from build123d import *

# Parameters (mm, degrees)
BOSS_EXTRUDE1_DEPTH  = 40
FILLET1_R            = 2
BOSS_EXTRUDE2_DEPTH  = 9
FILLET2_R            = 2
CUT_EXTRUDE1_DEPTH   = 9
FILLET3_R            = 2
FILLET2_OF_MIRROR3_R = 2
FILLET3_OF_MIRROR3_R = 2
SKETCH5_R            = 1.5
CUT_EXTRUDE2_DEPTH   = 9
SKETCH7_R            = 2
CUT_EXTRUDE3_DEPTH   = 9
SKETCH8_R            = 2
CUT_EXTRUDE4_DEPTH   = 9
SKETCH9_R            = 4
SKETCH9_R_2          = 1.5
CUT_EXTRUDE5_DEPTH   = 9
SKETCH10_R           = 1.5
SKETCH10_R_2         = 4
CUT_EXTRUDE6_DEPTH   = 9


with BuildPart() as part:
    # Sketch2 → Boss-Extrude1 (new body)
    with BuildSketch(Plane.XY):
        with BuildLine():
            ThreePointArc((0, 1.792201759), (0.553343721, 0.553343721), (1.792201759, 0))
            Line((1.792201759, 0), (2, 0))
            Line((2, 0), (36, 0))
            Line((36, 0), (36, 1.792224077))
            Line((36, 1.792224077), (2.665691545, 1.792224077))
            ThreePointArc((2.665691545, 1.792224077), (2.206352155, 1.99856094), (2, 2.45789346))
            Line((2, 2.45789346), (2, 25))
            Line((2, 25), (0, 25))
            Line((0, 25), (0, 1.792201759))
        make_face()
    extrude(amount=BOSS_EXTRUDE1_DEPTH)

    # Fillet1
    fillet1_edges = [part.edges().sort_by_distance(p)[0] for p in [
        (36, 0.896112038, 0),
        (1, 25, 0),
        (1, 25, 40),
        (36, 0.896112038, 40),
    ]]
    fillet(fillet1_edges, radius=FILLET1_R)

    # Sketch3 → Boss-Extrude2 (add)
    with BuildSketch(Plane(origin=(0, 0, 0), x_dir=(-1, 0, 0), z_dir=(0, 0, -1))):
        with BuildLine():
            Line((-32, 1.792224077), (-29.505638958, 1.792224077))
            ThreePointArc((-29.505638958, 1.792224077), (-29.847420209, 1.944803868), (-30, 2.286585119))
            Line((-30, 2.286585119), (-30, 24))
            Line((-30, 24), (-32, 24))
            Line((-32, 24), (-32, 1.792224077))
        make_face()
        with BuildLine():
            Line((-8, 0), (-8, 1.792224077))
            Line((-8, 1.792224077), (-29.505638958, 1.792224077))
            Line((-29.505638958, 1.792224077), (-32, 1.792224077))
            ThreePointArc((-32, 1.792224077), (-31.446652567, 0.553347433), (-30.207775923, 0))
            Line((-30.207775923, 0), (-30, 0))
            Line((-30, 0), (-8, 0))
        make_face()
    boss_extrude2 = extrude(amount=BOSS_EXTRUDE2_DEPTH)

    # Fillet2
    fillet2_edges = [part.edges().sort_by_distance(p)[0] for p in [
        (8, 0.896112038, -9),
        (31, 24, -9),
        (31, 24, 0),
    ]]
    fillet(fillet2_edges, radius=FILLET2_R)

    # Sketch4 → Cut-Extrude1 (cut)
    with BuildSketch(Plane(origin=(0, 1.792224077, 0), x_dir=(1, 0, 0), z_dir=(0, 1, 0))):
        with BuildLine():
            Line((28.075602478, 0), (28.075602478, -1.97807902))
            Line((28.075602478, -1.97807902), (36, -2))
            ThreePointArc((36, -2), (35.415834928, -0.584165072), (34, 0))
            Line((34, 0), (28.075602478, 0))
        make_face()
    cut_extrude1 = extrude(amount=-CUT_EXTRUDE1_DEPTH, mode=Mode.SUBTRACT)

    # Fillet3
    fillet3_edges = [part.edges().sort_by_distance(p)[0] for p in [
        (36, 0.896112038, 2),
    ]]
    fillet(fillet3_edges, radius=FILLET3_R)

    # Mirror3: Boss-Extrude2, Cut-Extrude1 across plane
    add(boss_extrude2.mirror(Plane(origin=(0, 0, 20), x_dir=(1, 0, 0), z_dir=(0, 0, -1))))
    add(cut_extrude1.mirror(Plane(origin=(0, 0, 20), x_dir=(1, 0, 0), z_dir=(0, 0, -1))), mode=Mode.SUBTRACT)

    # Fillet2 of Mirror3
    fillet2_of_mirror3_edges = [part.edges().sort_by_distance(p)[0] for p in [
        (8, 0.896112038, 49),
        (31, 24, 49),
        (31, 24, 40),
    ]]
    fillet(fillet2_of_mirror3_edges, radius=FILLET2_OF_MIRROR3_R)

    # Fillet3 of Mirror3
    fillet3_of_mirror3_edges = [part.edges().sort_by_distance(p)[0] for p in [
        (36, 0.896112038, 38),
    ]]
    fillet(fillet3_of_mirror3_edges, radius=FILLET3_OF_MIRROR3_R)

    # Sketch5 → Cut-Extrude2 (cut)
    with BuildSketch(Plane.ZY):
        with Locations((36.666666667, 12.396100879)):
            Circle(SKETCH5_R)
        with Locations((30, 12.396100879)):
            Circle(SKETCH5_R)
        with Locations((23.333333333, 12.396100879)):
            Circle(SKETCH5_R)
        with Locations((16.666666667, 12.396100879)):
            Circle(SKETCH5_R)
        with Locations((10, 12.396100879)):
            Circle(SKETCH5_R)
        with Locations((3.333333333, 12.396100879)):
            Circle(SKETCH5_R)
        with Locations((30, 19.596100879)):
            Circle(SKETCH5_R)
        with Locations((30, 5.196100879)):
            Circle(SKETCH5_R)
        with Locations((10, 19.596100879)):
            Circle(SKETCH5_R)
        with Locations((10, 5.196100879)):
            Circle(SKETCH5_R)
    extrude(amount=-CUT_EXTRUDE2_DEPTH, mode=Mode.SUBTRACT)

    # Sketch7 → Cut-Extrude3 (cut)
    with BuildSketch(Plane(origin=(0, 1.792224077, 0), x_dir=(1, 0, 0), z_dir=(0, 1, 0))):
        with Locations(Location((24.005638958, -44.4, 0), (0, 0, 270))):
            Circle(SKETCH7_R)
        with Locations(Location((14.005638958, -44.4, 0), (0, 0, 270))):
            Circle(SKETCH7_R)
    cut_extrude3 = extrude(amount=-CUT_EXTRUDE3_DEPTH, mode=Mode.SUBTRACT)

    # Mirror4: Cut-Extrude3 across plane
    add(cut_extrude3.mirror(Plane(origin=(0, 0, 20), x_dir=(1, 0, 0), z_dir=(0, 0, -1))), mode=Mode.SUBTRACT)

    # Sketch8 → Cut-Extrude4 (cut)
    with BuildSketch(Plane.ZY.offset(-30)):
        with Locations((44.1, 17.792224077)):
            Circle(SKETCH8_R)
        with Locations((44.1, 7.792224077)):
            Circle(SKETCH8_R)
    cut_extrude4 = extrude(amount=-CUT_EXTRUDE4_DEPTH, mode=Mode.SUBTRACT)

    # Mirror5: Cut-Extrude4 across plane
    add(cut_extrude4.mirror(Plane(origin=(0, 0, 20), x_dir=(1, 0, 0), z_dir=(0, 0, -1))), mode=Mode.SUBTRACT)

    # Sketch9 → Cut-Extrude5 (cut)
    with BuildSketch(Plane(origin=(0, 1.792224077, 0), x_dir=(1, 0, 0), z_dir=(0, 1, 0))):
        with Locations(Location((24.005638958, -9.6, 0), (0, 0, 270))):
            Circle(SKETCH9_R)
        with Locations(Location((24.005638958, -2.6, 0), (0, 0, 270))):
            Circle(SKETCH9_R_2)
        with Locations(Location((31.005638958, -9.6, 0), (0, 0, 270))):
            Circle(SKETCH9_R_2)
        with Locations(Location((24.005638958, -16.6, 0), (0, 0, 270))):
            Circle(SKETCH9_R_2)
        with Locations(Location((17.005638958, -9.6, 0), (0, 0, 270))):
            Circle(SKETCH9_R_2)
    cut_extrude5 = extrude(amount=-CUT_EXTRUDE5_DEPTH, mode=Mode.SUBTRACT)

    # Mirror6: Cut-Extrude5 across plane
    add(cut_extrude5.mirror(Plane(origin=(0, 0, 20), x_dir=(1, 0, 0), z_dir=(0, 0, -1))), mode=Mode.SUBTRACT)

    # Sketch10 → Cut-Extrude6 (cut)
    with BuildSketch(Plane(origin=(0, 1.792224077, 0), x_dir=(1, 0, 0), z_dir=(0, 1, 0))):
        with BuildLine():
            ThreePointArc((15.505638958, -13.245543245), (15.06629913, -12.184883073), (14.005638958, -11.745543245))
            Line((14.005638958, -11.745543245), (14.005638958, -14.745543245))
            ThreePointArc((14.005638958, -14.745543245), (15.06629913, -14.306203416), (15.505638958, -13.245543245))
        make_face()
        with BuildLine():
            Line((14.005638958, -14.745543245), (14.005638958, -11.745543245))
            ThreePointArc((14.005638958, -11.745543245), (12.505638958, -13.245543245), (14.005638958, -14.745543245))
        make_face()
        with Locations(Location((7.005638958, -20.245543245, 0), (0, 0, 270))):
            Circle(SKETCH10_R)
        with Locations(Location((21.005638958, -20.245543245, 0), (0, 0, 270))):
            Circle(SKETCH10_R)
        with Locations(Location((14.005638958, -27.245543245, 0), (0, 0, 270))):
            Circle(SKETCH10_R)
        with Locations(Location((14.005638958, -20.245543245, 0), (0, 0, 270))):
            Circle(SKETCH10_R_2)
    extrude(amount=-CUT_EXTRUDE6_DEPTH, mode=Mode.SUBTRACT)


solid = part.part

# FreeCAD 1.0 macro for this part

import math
import FreeCAD as App
import Part
import Sketcher


def edges_at(feature, points):
    """Names of the edges that pass closest to the given points."""
    edges = feature.Shape.Edges
    near = lambda p: min(range(len(edges)), key=lambda i: edges[i].distToShape(Part.Vertex(*p))[0])
    return sorted({f"Edge{near(p) + 1}" for p in points})

doc = App.newDocument("Part")
body = doc.addObject("PartDesign::Body", "Body")

# Sketch on XY plane
sketch1 = body.newObject("Sketcher::SketchObject", "Sketch")
sketch1.AttachmentSupport = (doc.getObject("XY_Plane"), [""])
sketch1.MapMode = "FlatFace"
sketch1.addGeometry([
    Part.ArcOfCircle(Part.Circle(App.Vector(1.9, 1.9, 0), App.Vector(0, 0, 1), 1.9), math.radians(-177), math.radians(-93)),  # 0
    Part.LineSegment(App.Vector(1.8, 0, 0), App.Vector(36, 0, 0)),  # 1
    Part.LineSegment(App.Vector(36, 0, 0), App.Vector(36, 1.8, 0)),  # 2
    Part.LineSegment(App.Vector(36, 1.8, 0), App.Vector(2.7, 1.8, 0)),  # 3
    Part.ArcOfCircle(Part.Circle(App.Vector(2.7, 2.5, 0), App.Vector(0, 0, 1), 0.7), math.radians(-177), math.radians(-93)),  # 4
    Part.LineSegment(App.Vector(2, 2.5, 0), App.Vector(2, 25, 0)),  # 5
    Part.LineSegment(App.Vector(2, 25, 0), App.Vector(0, 25, 0)),  # 6
    Part.LineSegment(App.Vector(0, 25, 0), App.Vector(0, 1.8, 0)),  # 7
], False)
sketch1.addConstraint([
    Sketcher.Constraint("Coincident", 0, 2, 1, 1),
    Sketcher.Constraint("Coincident", 1, 2, 2, 1),
    Sketcher.Constraint("Coincident", 2, 2, 3, 1),
    Sketcher.Constraint("Coincident", 3, 2, 4, 2),
    Sketcher.Constraint("Coincident", 4, 1, 5, 1),
    Sketcher.Constraint("Coincident", 5, 2, 6, 1),
    Sketcher.Constraint("Coincident", 6, 2, 7, 1),
    Sketcher.Constraint("Coincident", 7, 2, 0, 1),
    Sketcher.Constraint("Horizontal", 1),
    Sketcher.Constraint("Vertical", 2),
    Sketcher.Constraint("Horizontal", 3),
    Sketcher.Constraint("Vertical", 5),
    Sketcher.Constraint("Horizontal", 6),
    Sketcher.Constraint("Vertical", 7),
    Sketcher.Constraint("PointOnObject", 0, 2, -1),
    Sketcher.Constraint("PointOnObject", 6, 2, -2),
    Sketcher.Constraint("DistanceX", 6, 2, 6, 1, 2.0),
    Sketcher.Constraint("DistanceX", -1, 1, 1, 2, 36.0),
    Sketcher.Constraint("DistanceY", -1, 1, 5, 2, 25.0),
    Sketcher.Constraint("DistanceX", 1, 1, 1, 2, 34.207798),
    Sketcher.Constraint("DistanceY", 7, 2, 7, 1, 23.207798),
    Sketcher.Constraint("Radius", 0, 1.898945),
    Sketcher.Constraint("Radius", 4, 0.708717),
    Sketcher.Constraint("DistanceX", 3, 2, 3, 1, 33.334308),
    Sketcher.Constraint("DistanceY", 2, 1, 2, 2, 1.792224),
    Sketcher.Constraint("DistanceY", 5, 1, 5, 2, 22.542107),
])
pad1 = body.newObject("PartDesign::Pad", "Pad")
pad1.Profile = sketch1
pad1.Length = 40
doc.recompute()

fillet = body.newObject("PartDesign::Fillet", "Fillet")
fillet.Base = (pad1, edges_at(pad1, [
    (36, 0.896, 0),
    (1, 25, 0),
    (1, 25, 40),
    (36, 0.896, 40),
]))
fillet.Radius = 2

# Sketch on XY plane
sketch2 = body.newObject("Sketcher::SketchObject", "Sketch001")
sketch2.AttachmentSupport = (doc.getObject("XY_Plane"), [""])
sketch2.MapMode = "FlatFace"
sketch2.addGeometry([
    Part.ArcOfCircle(Part.Circle(App.Vector(29.5, 2.3, 0), App.Vector(0, 0, 1), 0.5), math.radians(-87), math.radians(-3)),  # 0
    Part.LineSegment(App.Vector(30, 2.3, 0), App.Vector(30, 24, 0)),  # 1
    Part.LineSegment(App.Vector(30, 24, 0), App.Vector(32, 24, 0)),  # 2
    Part.LineSegment(App.Vector(32, 24, 0), App.Vector(32, 1.8, 0)),  # 3
    Part.ArcOfCircle(Part.Circle(App.Vector(30.1, 1.9, 0), App.Vector(0, 0, 1), 1.9), math.radians(-87), math.radians(-3)),  # 4
    Part.LineSegment(App.Vector(30.2, 0, 0), App.Vector(8, 0, 0)),  # 5
    Part.LineSegment(App.Vector(8, 0, 0), App.Vector(8, 1.8, 0)),  # 6
    Part.LineSegment(App.Vector(8, 1.8, 0), App.Vector(29.5, 1.8, 0)),  # 7
], False)
sketch2.addConstraint([
    Sketcher.Constraint("Coincident", 0, 2, 1, 1),
    Sketcher.Constraint("Coincident", 1, 2, 2, 1),
    Sketcher.Constraint("Coincident", 2, 2, 3, 1),
    Sketcher.Constraint("Coincident", 3, 2, 4, 2),
    Sketcher.Constraint("Coincident", 4, 1, 5, 1),
    Sketcher.Constraint("Coincident", 5, 2, 6, 1),
    Sketcher.Constraint("Coincident", 6, 2, 7, 1),
    Sketcher.Constraint("Coincident", 7, 2, 0, 1),
    Sketcher.Constraint("Vertical", 1),
    Sketcher.Constraint("Horizontal", 2),
    Sketcher.Constraint("Vertical", 3),
    Sketcher.Constraint("Horizontal", 5),
    Sketcher.Constraint("Vertical", 6),
    Sketcher.Constraint("Horizontal", 7),
    Sketcher.Constraint("PointOnObject", 4, 1, -1),
    Sketcher.Constraint("Horizontal", 3, 2, 6, 2),
    Sketcher.Constraint("Equal", 5, 3),
    Sketcher.Constraint("DistanceX", 2, 1, 2, 2, 2.0),
    Sketcher.Constraint("DistanceX", -1, 1, 0, 2, 30.0),
    Sketcher.Constraint("DistanceY", -1, 1, 1, 2, 24.0),
    Sketcher.Constraint("DistanceX", -1, 1, 5, 2, 8.0),
    Sketcher.Constraint("Radius", 0, 0.52358),
    Sketcher.Constraint("Radius", 4, 1.898956),
    Sketcher.Constraint("DistanceX", 7, 1, 7, 2, 21.505639),
    Sketcher.Constraint("DistanceX", 5, 2, 5, 1, 22.207776),
    Sketcher.Constraint("DistanceY", 1, 1, 1, 2, 21.713415),
])
pad2 = body.newObject("PartDesign::Pad", "Pad001")
pad2.Profile = sketch2
pad2.Length = 9
pad2.Reversed = True
doc.recompute()

fillet2 = body.newObject("PartDesign::Fillet", "Fillet001")
fillet2.Base = (pad2, edges_at(pad2, [(8, 0.896, -9), (31, 24, -9), (31, 24, 0)]))
fillet2.Radius = 2

# Sketch on XZ plane
sketch3 = body.newObject("Sketcher::SketchObject", "Sketch002")
sketch3.AttachmentSupport = (doc.getObject("XZ_Plane"), [""])
sketch3.MapMode = "FlatFace"
sketch3.AttachmentOffset = App.Placement(App.Vector(0, 0, -1.792224), App.Rotation())
sketch3.addGeometry([
    Part.LineSegment(App.Vector(28.1, 0, 0), App.Vector(28.1, 2, 0)),
    Part.LineSegment(App.Vector(28.1, 2, 0), App.Vector(36, 2, 0)),
    Part.ArcOfCircle(Part.Circle(App.Vector(34, 2, 0), App.Vector(0, 0, 1), 2), math.radians(-90), math.radians(0)),
    Part.LineSegment(App.Vector(34, 0, 0), App.Vector(28.1, 0, 0)),
], False)
sketch3.addConstraint([
    Sketcher.Constraint("Coincident", 0, 2, 1, 1),
    Sketcher.Constraint("Coincident", 1, 2, 2, 2),
    Sketcher.Constraint("Coincident", 2, 1, 3, 1),
    Sketcher.Constraint("Coincident", 3, 2, 0, 1),
    Sketcher.Constraint("Vertical", 0),
    Sketcher.Constraint("Horizontal", 3),
    Sketcher.Constraint("PointOnObject", 2, 1, -1),
    Sketcher.Constraint("DistanceX", -1, 1, 1, 2, 36.0),
    Sketcher.Constraint("DistanceY", -1, 1, 1, 2, 2.0),
    Sketcher.Constraint("DistanceX", -1, 1, 2, 1, 34.0),
    Sketcher.Constraint("Radius", 2, 1.99449),
    Sketcher.Constraint("DistanceY", 0, 1, 0, 2, 1.978079),
    Sketcher.Constraint("DistanceX", 3, 2, 3, 1, 5.924398),
])
pocket1 = body.newObject("PartDesign::Pocket", "Pocket")
pocket1.Profile = sketch3
pocket1.Length = 9
pocket1.Reversed = True
doc.recompute()

fillet3 = body.newObject("PartDesign::Fillet", "Fillet002")
fillet3.Base = (pocket1, edges_at(pocket1, [(36, 0.896, 2)]))
fillet3.Radius = 2
doc.recompute()

datumplane = body.newObject("PartDesign::Plane", "DatumPlane")
datumplane.AttachmentSupport = (doc.getObject("XY_Plane"), [""])
datumplane.MapMode = "FlatFace"
datumplane.AttachmentOffset = App.Placement(App.Vector(0, 0, 20), App.Rotation())
mirrored = body.newObject("PartDesign::Mirrored", "Mirrored")
mirrored.Originals = [pad2, pocket1]
mirrored.MirrorPlane = (datumplane, [""])
body.Tip = mirrored
doc.recompute()

fillet4 = body.newObject("PartDesign::Fillet", "Fillet003")
fillet4.Base = (mirrored, edges_at(mirrored, [(8, 0.896, 49), (31, 24, 49), (31, 24, 40)]))
fillet4.Radius = 2
doc.recompute()

fillet5 = body.newObject("PartDesign::Fillet", "Fillet004")
fillet5.Base = (fillet4, edges_at(fillet4, [(36, 0.896, 38)]))
fillet5.Radius = 2

# Sketch on YZ plane
sketch4 = body.newObject("Sketcher::SketchObject", "Sketch003")
sketch4.AttachmentSupport = (doc.getObject("YZ_Plane"), [""])
sketch4.MapMode = "FlatFace"
sketch4.addGeometry([
    Part.Circle(App.Vector(12.4, 36.7, 0), App.Vector(0, 0, 1), 1.5),  # 0
    Part.Circle(App.Vector(12.4, 30, 0), App.Vector(0, 0, 1), 1.5),  # 1
    Part.Circle(App.Vector(12.4, 23.3, 0), App.Vector(0, 0, 1), 1.5),  # 2
    Part.Circle(App.Vector(12.4, 16.7, 0), App.Vector(0, 0, 1), 1.5),  # 3
    Part.Circle(App.Vector(12.4, 10, 0), App.Vector(0, 0, 1), 1.5),  # 4
    Part.Circle(App.Vector(12.4, 3.3, 0), App.Vector(0, 0, 1), 1.5),  # 5
    Part.Circle(App.Vector(19.6, 30, 0), App.Vector(0, 0, 1), 1.5),  # 6
    Part.Circle(App.Vector(5.2, 30, 0), App.Vector(0, 0, 1), 1.5),  # 7
    Part.Circle(App.Vector(19.6, 10, 0), App.Vector(0, 0, 1), 1.5),  # 8
    Part.Circle(App.Vector(5.2, 10, 0), App.Vector(0, 0, 1), 1.5),  # 9
], False)
sketch4.addConstraint([
    Sketcher.Constraint("Equal", 0, 1),
    Sketcher.Constraint("Equal", 1, 2),
    Sketcher.Constraint("Equal", 2, 3),
    Sketcher.Constraint("Equal", 3, 4),
    Sketcher.Constraint("Equal", 4, 5),
    Sketcher.Constraint("Equal", 5, 6),
    Sketcher.Constraint("Equal", 6, 7),
    Sketcher.Constraint("Equal", 7, 8),
    Sketcher.Constraint("Equal", 8, 9),
    Sketcher.Constraint("Horizontal", 1, 3, 6, 3),
    Sketcher.Constraint("Horizontal", 6, 3, 7, 3),
    Sketcher.Constraint("Horizontal", 4, 3, 8, 3),
    Sketcher.Constraint("Horizontal", 8, 3, 9, 3),
    Sketcher.Constraint("Vertical", 0, 3, 1, 3),
    Sketcher.Constraint("Vertical", 1, 3, 2, 3),
    Sketcher.Constraint("Vertical", 2, 3, 3, 3),
    Sketcher.Constraint("Vertical", 3, 3, 4, 3),
    Sketcher.Constraint("Vertical", 4, 3, 5, 3),
    Sketcher.Constraint("Vertical", 6, 3, 8, 3),
    Sketcher.Constraint("Vertical", 7, 3, 9, 3),
    Sketcher.Constraint("Diameter", 0, 3.0),
    Sketcher.Constraint("DistanceY", -1, 1, 1, 3, 30.0),
    Sketcher.Constraint("DistanceY", -1, 1, 4, 3, 10.0),
    Sketcher.Constraint("DistanceY", 3, 3, 0, 3, 20.0),
    Sketcher.Constraint("DistanceY", 5, 3, 2, 3, 20.0),
    Sketcher.Constraint("DistanceX", 1, 3, 6, 3, 7.2),
    Sketcher.Constraint("DistanceX", 7, 3, 1, 3, 7.2),
    Sketcher.Constraint("DistanceX", -1, 1, 0, 3, 12.396101),
    Sketcher.Constraint("DistanceY", -1, 1, 0, 3, 36.666667),
    Sketcher.Constraint("DistanceY", -1, 1, 2, 3, 23.333333),
])
pocket2 = body.newObject("PartDesign::Pocket", "Pocket001")
pocket2.Profile = sketch4
pocket2.Length = 9
pocket2.Reversed = True

# Sketch on XZ plane
sketch5 = body.newObject("Sketcher::SketchObject", "Sketch004")
sketch5.AttachmentSupport = (doc.getObject("XZ_Plane"), [""])
sketch5.MapMode = "FlatFace"
sketch5.AttachmentOffset = App.Placement(App.Vector(0, 0, -1.792224), App.Rotation())
sketch5.addGeometry([
    Part.Circle(App.Vector(24, 44.4, 0), App.Vector(0, 0, 1), 2),
    Part.Circle(App.Vector(14, 44.4, 0), App.Vector(0, 0, 1), 2),
], False)
sketch5.addConstraint([
    Sketcher.Constraint("Equal", 0, 1),
    Sketcher.Constraint("Horizontal", 0, 3, 1, 3),
    Sketcher.Constraint("Diameter", 0, 4.0),
    Sketcher.Constraint("DistanceX", 1, 3, 0, 3, 10.0),
    Sketcher.Constraint("DistanceY", -1, 1, 0, 3, 44.4),
    Sketcher.Constraint("DistanceX", -1, 1, 0, 3, 24.005639),
])
pocket3 = body.newObject("PartDesign::Pocket", "Pocket002")
pocket3.Profile = sketch5
pocket3.Length = 9
pocket3.Reversed = True
doc.recompute()

datumplane2 = body.newObject("PartDesign::Plane", "DatumPlane001")
datumplane2.AttachmentSupport = (doc.getObject("XY_Plane"), [""])
datumplane2.MapMode = "FlatFace"
datumplane2.AttachmentOffset = App.Placement(App.Vector(0, 0, 20), App.Rotation())
mirrored2 = body.newObject("PartDesign::Mirrored", "Mirrored001")
mirrored2.Originals = [pocket3]
mirrored2.MirrorPlane = (datumplane2, [""])
body.Tip = mirrored2

# Sketch on YZ plane
sketch6 = body.newObject("Sketcher::SketchObject", "Sketch005")
sketch6.AttachmentSupport = (doc.getObject("YZ_Plane"), [""])
sketch6.MapMode = "FlatFace"
sketch6.AttachmentOffset = App.Placement(App.Vector(0, 0, 30), App.Rotation())
sketch6.addGeometry([
    Part.Circle(App.Vector(17.8, 44.1, 0), App.Vector(0, 0, 1), 2),
    Part.Circle(App.Vector(7.8, 44.1, 0), App.Vector(0, 0, 1), 2),
], False)
sketch6.addConstraint([
    Sketcher.Constraint("Equal", 0, 1),
    Sketcher.Constraint("Horizontal", 0, 3, 1, 3),
    Sketcher.Constraint("Diameter", 0, 4.0),
    Sketcher.Constraint("DistanceX", 1, 3, 0, 3, 10.0),
    Sketcher.Constraint("DistanceY", -1, 1, 0, 3, 44.1),
    Sketcher.Constraint("DistanceX", -1, 1, 0, 3, 17.792224),
])
pocket4 = body.newObject("PartDesign::Pocket", "Pocket003")
pocket4.Profile = sketch6
pocket4.Length = 9
pocket4.Reversed = True
doc.recompute()

datumplane3 = body.newObject("PartDesign::Plane", "DatumPlane002")
datumplane3.AttachmentSupport = (doc.getObject("XY_Plane"), [""])
datumplane3.MapMode = "FlatFace"
datumplane3.AttachmentOffset = App.Placement(App.Vector(0, 0, 20), App.Rotation())
mirrored3 = body.newObject("PartDesign::Mirrored", "Mirrored002")
mirrored3.Originals = [pocket4]
mirrored3.MirrorPlane = (datumplane3, [""])
body.Tip = mirrored3

# Sketch on XZ plane
sketch7 = body.newObject("Sketcher::SketchObject", "Sketch006")
sketch7.AttachmentSupport = (doc.getObject("XZ_Plane"), [""])
sketch7.MapMode = "FlatFace"
sketch7.AttachmentOffset = App.Placement(App.Vector(0, 0, -1.792224), App.Rotation())
sketch7.addGeometry([
    Part.Circle(App.Vector(24, 9.6, 0), App.Vector(0, 0, 1), 4),  # 0
    Part.Circle(App.Vector(24, 2.6, 0), App.Vector(0, 0, 1), 1.5),  # 1
    Part.Circle(App.Vector(31, 9.6, 0), App.Vector(0, 0, 1), 1.5),  # 2
    Part.Circle(App.Vector(24, 16.6, 0), App.Vector(0, 0, 1), 1.5),  # 3
    Part.Circle(App.Vector(17, 9.6, 0), App.Vector(0, 0, 1), 1.5),  # 4
], False)
sketch7.addConstraint([
    Sketcher.Constraint("Equal", 1, 2),
    Sketcher.Constraint("Equal", 2, 3),
    Sketcher.Constraint("Equal", 3, 4),
    Sketcher.Constraint("Horizontal", 0, 3, 2, 3),
    Sketcher.Constraint("Horizontal", 2, 3, 4, 3),
    Sketcher.Constraint("Vertical", 0, 3, 1, 3),
    Sketcher.Constraint("Vertical", 1, 3, 3, 3),
    Sketcher.Constraint("Diameter", 0, 8.0),
    Sketcher.Constraint("Diameter", 1, 3.0),
    Sketcher.Constraint("DistanceY", 1, 3, 0, 3, 7.0),
    Sketcher.Constraint("DistanceX", 0, 3, 2, 3, 7.0),
    Sketcher.Constraint("DistanceY", 0, 3, 3, 3, 7.0),
    Sketcher.Constraint("DistanceX", 4, 3, 0, 3, 7.0),
    Sketcher.Constraint("DistanceY", -1, 1, 0, 3, 9.6),
    Sketcher.Constraint("DistanceX", -1, 1, 0, 3, 24.005639),
])
pocket5 = body.newObject("PartDesign::Pocket", "Pocket004")
pocket5.Profile = sketch7
pocket5.Length = 9
pocket5.Reversed = True
doc.recompute()

datumplane4 = body.newObject("PartDesign::Plane", "DatumPlane003")
datumplane4.AttachmentSupport = (doc.getObject("XY_Plane"), [""])
datumplane4.MapMode = "FlatFace"
datumplane4.AttachmentOffset = App.Placement(App.Vector(0, 0, 20), App.Rotation())
mirrored4 = body.newObject("PartDesign::Mirrored", "Mirrored003")
mirrored4.Originals = [pocket5]
mirrored4.MirrorPlane = (datumplane4, [""])
body.Tip = mirrored4

# Sketch on XZ plane
sketch8 = body.newObject("Sketcher::SketchObject", "Sketch007")
sketch8.AttachmentSupport = (doc.getObject("XZ_Plane"), [""])
sketch8.MapMode = "FlatFace"
sketch8.AttachmentOffset = App.Placement(App.Vector(0, 0, -1.792224), App.Rotation())
sketch8.addGeometry([
    Part.ArcOfCircle(Part.Circle(App.Vector(14, 13.2, 0), App.Vector(0, 0, 1), 1.5), math.radians(-90), math.radians(0)),  # 0
    Part.ArcOfCircle(Part.Circle(App.Vector(14, 13.2, 0), App.Vector(0, 0, 1), 1.5), math.radians(90), math.radians(270)),  # 1
    Part.ArcOfCircle(Part.Circle(App.Vector(14, 13.2, 0), App.Vector(0, 0, 1), 1.5), math.radians(0), math.radians(90)),  # 2
    Part.Circle(App.Vector(7, 20.2, 0), App.Vector(0, 0, 1), 1.5),  # 3
    Part.Circle(App.Vector(21, 20.2, 0), App.Vector(0, 0, 1), 1.5),  # 4
    Part.Circle(App.Vector(14, 27.2, 0), App.Vector(0, 0, 1), 1.5),  # 5
    Part.Circle(App.Vector(14, 20.2, 0), App.Vector(0, 0, 1), 4),  # 6
], False)
sketch8.addConstraint([
    Sketcher.Constraint("Tangent", 0, 1, 1, 2),
    Sketcher.Constraint("Tangent", 1, 1, 2, 2),
    Sketcher.Constraint("Tangent", 2, 1, 0, 2),
    Sketcher.Constraint("Equal", 2, 3),
    Sketcher.Constraint("Equal", 3, 4),
    Sketcher.Constraint("Equal", 4, 5),
    Sketcher.Constraint("Horizontal", 3, 3, 4, 3),
    Sketcher.Constraint("Horizontal", 4, 3, 6, 3),
    Sketcher.Constraint("Horizontal", 1, 3, 2, 1),
    Sketcher.Constraint("Vertical", 2, 3, 5, 3),
    Sketcher.Constraint("Vertical", 5, 3, 6, 3),
    Sketcher.Constraint("Vertical", 6, 3, 0, 1),
    Sketcher.Constraint("Vertical", 0, 1, 1, 1),
    Sketcher.Constraint("Diameter", 3, 3.0),
    Sketcher.Constraint("Diameter", 6, 8.0),
    Sketcher.Constraint("DistanceX", 3, 3, 1, 3, 7.0),
    Sketcher.Constraint("DistanceY", 1, 3, 3, 3, 7.0),
    Sketcher.Constraint("DistanceX", 0, 3, 4, 3, 7.0),
    Sketcher.Constraint("DistanceY", 4, 3, 5, 3, 7.0),
    Sketcher.Constraint("DistanceX", -1, 1, 0, 3, 14.005639),
    Sketcher.Constraint("DistanceY", -1, 1, 0, 3, 13.245543),
])
pocket6 = body.newObject("PartDesign::Pocket", "Pocket005")
pocket6.Profile = sketch8
pocket6.Length = 9
pocket6.Reversed = True

doc.recompute()
